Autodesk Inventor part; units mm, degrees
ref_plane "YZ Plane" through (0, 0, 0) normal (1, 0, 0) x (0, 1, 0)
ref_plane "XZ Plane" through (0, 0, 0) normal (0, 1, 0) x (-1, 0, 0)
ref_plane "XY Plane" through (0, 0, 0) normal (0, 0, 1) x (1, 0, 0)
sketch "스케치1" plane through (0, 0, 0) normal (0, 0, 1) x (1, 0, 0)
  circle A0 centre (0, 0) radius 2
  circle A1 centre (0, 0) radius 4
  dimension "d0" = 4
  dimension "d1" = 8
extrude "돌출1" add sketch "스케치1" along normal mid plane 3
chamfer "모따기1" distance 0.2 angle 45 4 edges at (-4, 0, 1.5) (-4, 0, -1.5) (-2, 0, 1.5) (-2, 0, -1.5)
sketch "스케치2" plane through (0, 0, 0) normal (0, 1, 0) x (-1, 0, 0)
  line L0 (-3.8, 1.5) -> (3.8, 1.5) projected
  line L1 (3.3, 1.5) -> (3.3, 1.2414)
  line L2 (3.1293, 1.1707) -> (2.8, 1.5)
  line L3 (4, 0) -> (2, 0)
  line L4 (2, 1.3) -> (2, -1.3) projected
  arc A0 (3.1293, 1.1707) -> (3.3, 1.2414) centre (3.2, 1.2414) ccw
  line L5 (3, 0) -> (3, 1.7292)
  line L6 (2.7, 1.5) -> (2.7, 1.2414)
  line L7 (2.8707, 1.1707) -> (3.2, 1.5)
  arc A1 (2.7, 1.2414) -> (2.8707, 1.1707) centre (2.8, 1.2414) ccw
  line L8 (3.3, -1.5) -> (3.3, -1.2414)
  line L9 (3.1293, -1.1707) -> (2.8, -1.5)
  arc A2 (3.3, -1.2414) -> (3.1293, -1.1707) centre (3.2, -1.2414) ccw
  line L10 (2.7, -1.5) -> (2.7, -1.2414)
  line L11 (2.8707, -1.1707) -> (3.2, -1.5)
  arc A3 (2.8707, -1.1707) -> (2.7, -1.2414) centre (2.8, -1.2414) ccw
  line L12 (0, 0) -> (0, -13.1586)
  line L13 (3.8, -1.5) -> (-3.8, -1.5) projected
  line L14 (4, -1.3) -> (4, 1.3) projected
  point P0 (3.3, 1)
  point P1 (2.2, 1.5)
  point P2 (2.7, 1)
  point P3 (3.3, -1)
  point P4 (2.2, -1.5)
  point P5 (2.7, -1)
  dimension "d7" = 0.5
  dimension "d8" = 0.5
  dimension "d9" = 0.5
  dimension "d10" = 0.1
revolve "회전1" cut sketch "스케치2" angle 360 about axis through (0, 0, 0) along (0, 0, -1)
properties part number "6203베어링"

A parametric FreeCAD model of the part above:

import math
import FreeCAD as App
import Part
import Sketcher
from FreeCAD import Vector


def edges_at(feature, points):
    """Names of the edges that pass closest to the given points."""
    edges = feature.Shape.Edges
    near = lambda p: min(range(len(edges)), key=lambda i: edges[i].distToShape(Part.Vertex(*p))[0])
    return sorted({f"Edge{near(p) + 1}" for p in points})

doc = App.newDocument("Part")
body = doc.addObject("PartDesign::Body", "Body")

# Sketch on XY plane
sketch1 = body.newObject("Sketcher::SketchObject", "Sketch")
sketch1.AttachmentSupport = (doc.getObject("XY_Plane"), [""])
sketch1.MapMode = "FlatFace"
sketch1.addGeometry(Part.Circle(Vector(0, 0, 0), Vector(0, 0, 1), 4), False)
sketch1.addGeometry(Part.Circle(Vector(0, 0, 0), Vector(0, 0, 1), 2), False)
sketch1.addConstraint(Sketcher.Constraint("Coincident", 0, 3, -1, 1))
sketch1.addConstraint(Sketcher.Constraint("Coincident", 1, 3, -1, 1))
sketch1.addConstraint(Sketcher.Constraint("Diameter", 0, 8.0))
sketch1.addConstraint(Sketcher.Constraint("Diameter", 1, 4.0))
pad1 = body.newObject("PartDesign::Pad", "Pad")
pad1.Profile = sketch1
pad1.Length = 3
pad1.Midplane = True
doc.recompute()

chamfer = body.newObject("PartDesign::Chamfer", "Chamfer")
chamfer.Base = (pad1, edges_at(pad1, [
    (-4, 0, 1.5),
    (-4, 0, -1.5),
    (-2, 0, 1.5),
    (-2, 0, -1.5),
]))
chamfer.Size = 0.2

# Sketch on XZ plane
sketch2 = body.newObject("Sketcher::SketchObject", "Sketch001")
sketch2.AttachmentSupport = (doc.getObject("XZ_Plane"), [""])
sketch2.MapMode = "FlatFace"
sketch2.addGeometry(Part.LineSegment(Vector(-2.7, 1.5, 0), Vector(-2.7, 1.2414, 0)), False)
sketch2.addGeometry(Part.ArcOfCircle(Part.Circle(Vector(-2.8, 1.2414, 0), Vector(0, 0, 1), 0.1), math.radians(-135), math.radians(0)), False)
sketch2.addGeometry(Part.LineSegment(Vector(-2.8707, 1.1707, 0), Vector(-3, 1.3, 0)), False)
sketch2.addGeometry(Part.LineSegment(Vector(-3, 1.3, 0), Vector(-3.1293, 1.1707, 0)), False)
sketch2.addGeometry(Part.ArcOfCircle(Part.Circle(Vector(-3.2, 1.2414, 0), Vector(0, 0, 1), 0.099985), math.radians(180), math.radians(315)), False)
sketch2.addGeometry(Part.LineSegment(Vector(-3.3, 1.2414, 0), Vector(-3.3, 1.5, 0)), False)
sketch2.addGeometry(Part.LineSegment(Vector(-3.3, 1.5, 0), Vector(-2.7, 1.5, 0)), False)
sketch2.addGeometry(Part.LineSegment(Vector(-3.3, -1.5, 0), Vector(-3.3, -1.2414, 0)), False)
sketch2.addGeometry(Part.ArcOfCircle(Part.Circle(Vector(-3.2, -1.2414, 0), Vector(0, 0, 1), 0.1), math.radians(45), math.radians(180)), False)
sketch2.addGeometry(Part.LineSegment(Vector(-3.1293, -1.1707, 0), Vector(-3, -1.3, 0)), False)
sketch2.addGeometry(Part.LineSegment(Vector(-3, -1.3, 0), Vector(-2.8707, -1.1707, 0)), False)
sketch2.addGeometry(Part.ArcOfCircle(Part.Circle(Vector(-2.8, -1.2414, 0), Vector(0, 0, 1), 0.099985), math.radians(0), math.radians(135)), False)
sketch2.addGeometry(Part.LineSegment(Vector(-2.7, -1.2414, 0), Vector(-2.7, -1.5, 0)), False)
sketch2.addGeometry(Part.LineSegment(Vector(-2.7, -1.5, 0), Vector(-3.3, -1.5, 0)), False)
sketch2.addConstraint(Sketcher.Constraint("Tangent", 0, 2, 1, 2))
sketch2.addConstraint(Sketcher.Constraint("Tangent", 1, 1, 2, 1))
sketch2.addConstraint(Sketcher.Constraint("Coincident", 2, 2, 3, 1))
sketch2.addConstraint(Sketcher.Constraint("Tangent", 3, 2, 4, 2))
sketch2.addConstraint(Sketcher.Constraint("Tangent", 4, 1, 5, 1))
sketch2.addConstraint(Sketcher.Constraint("Coincident", 5, 2, 6, 1))
sketch2.addConstraint(Sketcher.Constraint("Coincident", 6, 2, 0, 1))
sketch2.addConstraint(Sketcher.Constraint("Tangent", 7, 2, 8, 2))
sketch2.addConstraint(Sketcher.Constraint("Tangent", 8, 1, 9, 1))
sketch2.addConstraint(Sketcher.Constraint("Coincident", 9, 2, 10, 1))
sketch2.addConstraint(Sketcher.Constraint("Tangent", 10, 2, 11, 2))
sketch2.addConstraint(Sketcher.Constraint("Tangent", 11, 1, 12, 1))
sketch2.addConstraint(Sketcher.Constraint("Coincident", 12, 2, 13, 1))
sketch2.addConstraint(Sketcher.Constraint("Coincident", 13, 2, 7, 1))
sketch2.addConstraint(Sketcher.Constraint("Vertical", 0))
sketch2.addConstraint(Sketcher.Constraint("Vertical", 5))
sketch2.addConstraint(Sketcher.Constraint("Horizontal", 6))
sketch2.addConstraint(Sketcher.Constraint("Vertical", 7))
sketch2.addConstraint(Sketcher.Constraint("Vertical", 12))
sketch2.addConstraint(Sketcher.Constraint("Horizontal", 13))
sketch2.addConstraint(Sketcher.Constraint("Equal", 1, 4))
sketch2.addConstraint(Sketcher.Constraint("Equal", 4, 8))
sketch2.addConstraint(Sketcher.Constraint("Equal", 8, 11))
sketch2.addConstraint(Sketcher.Constraint("Symmetric", 4, 3, 8, 3, -1))
sketch2.addConstraint(Sketcher.Constraint("Symmetric", 1, 3, 11, 3, -1))
sketch2.addConstraint(Sketcher.Constraint("Symmetric", 2, 2, 9, 2, -1))
sketch2.addConstraint(Sketcher.Constraint("Perpendicular", 2, 3))
sketch2.addConstraint(Sketcher.Constraint("Perpendicular", 3, 9))
sketch2.addConstraint(Sketcher.Constraint("Horizontal", 1, 3, 4, 3))
sketch2.addConstraint(Sketcher.Constraint("Equal", 5, 7))
sketch2.addConstraint(Sketcher.Constraint("Radius", 1, 0.1))
sketch2.addConstraint(Sketcher.Constraint("DistanceX", 4, 3, 0, 2, 0.5))
sketch2.addConstraint(Sketcher.Constraint("DistanceX", 2, 2, -1, 1, 3.0))
sketch2.addConstraint(Sketcher.Constraint("DistanceY", -1, 1, 2, 2, 1.3))
sketch2.addConstraint(Sketcher.Constraint("DistanceY", -1, 1, 5, 2, 1.5))
groove = body.newObject("PartDesign::Groove", "Groove")
groove.Profile = sketch2
groove.ReferenceAxis = (sketch2, ["V_Axis"])
groove.Angle = 360

doc.recompute()
